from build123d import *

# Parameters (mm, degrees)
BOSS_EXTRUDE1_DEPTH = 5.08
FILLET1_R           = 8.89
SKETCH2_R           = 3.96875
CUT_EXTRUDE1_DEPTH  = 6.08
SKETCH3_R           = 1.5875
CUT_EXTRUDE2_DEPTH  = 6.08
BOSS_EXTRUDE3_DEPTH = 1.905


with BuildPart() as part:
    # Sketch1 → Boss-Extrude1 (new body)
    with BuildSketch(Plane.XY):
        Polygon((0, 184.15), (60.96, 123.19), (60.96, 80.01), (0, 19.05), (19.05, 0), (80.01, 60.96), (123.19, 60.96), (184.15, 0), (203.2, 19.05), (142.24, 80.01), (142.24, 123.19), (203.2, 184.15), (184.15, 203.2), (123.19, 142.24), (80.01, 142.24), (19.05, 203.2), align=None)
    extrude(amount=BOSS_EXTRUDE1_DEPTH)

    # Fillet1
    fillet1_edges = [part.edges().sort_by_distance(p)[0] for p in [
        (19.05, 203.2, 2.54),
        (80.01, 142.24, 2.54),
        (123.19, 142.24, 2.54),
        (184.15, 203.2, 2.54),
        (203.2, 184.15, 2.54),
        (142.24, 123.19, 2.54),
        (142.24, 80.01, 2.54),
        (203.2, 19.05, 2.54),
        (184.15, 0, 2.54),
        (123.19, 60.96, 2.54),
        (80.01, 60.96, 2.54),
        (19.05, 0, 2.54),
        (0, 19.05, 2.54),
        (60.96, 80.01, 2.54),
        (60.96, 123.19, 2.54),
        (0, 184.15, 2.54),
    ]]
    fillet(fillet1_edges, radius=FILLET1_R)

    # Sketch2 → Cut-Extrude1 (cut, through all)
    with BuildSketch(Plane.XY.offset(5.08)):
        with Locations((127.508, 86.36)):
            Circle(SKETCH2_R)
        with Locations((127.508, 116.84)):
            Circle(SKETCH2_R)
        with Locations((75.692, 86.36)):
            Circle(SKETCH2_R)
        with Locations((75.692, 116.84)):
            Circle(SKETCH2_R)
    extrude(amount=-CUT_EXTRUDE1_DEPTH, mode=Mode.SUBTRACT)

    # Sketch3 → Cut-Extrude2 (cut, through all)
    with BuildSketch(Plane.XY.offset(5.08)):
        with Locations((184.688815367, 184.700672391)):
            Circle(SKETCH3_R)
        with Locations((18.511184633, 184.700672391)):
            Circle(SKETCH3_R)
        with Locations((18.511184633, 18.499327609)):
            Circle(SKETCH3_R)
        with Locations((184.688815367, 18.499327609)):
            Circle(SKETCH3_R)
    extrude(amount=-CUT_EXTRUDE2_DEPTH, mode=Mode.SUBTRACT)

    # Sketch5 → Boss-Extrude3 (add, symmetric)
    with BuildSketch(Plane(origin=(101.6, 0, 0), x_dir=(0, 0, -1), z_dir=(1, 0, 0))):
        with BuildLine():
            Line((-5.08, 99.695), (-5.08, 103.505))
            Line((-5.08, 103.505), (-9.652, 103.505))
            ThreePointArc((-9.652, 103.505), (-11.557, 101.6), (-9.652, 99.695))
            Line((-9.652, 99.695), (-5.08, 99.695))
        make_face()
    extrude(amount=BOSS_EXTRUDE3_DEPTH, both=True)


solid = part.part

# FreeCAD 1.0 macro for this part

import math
import FreeCAD as App
import Part
import Sketcher
Q = App.Units.Quantity


def edges_at(feature, points):
    """Names of the edges that pass closest to the given points."""
    edges = feature.Shape.Edges
    near = lambda p: min(range(len(edges)), key=lambda i: edges[i].distToShape(Part.Vertex(*p))[0])
    return sorted({f"Edge{near(p) + 1}" for p in points})

doc = App.newDocument("Part")
body = doc.addObject("PartDesign::Body", "Body")

# Sketch on XY plane
sketch1 = body.newObject("Sketcher::SketchObject", "Sketch")
sketch1.AttachmentSupport = (doc.getObject("XY_Plane"), [""])
sketch1.MapMode = "FlatFace"
sketch1.addGeometry([
    Part.LineSegment(App.Vector(0, 184.15, 0), App.Vector(60.96, 123.19, 0)),  # 0
    Part.LineSegment(App.Vector(60.96, 123.19, 0), App.Vector(60.96, 80.01, 0)),  # 1
    Part.LineSegment(App.Vector(60.96, 80.01, 0), App.Vector(0, 19.05, 0)),  # 2
    Part.LineSegment(App.Vector(0, 19.05, 0), App.Vector(19.05, 0, 0)),  # 3
    Part.LineSegment(App.Vector(19.05, 0, 0), App.Vector(80.01, 60.96, 0)),  # 4
    Part.LineSegment(App.Vector(80.01, 60.96, 0), App.Vector(123.19, 60.96, 0)),  # 5
    Part.LineSegment(App.Vector(123.19, 60.96, 0), App.Vector(184.15, 0, 0)),  # 6
    Part.LineSegment(App.Vector(184.15, 0, 0), App.Vector(203.2, 19.05, 0)),  # 7
    Part.LineSegment(App.Vector(203.2, 19.05, 0), App.Vector(142.24, 80.01, 0)),  # 8
    Part.LineSegment(App.Vector(142.24, 80.01, 0), App.Vector(142.24, 123.19, 0)),  # 9
    Part.LineSegment(App.Vector(142.24, 123.19, 0), App.Vector(203.2, 184.15, 0)),  # 10
    Part.LineSegment(App.Vector(203.2, 184.15, 0), App.Vector(184.15, 203.2, 0)),  # 11
    Part.LineSegment(App.Vector(184.15, 203.2, 0), App.Vector(123.19, 142.24, 0)),  # 12
    Part.LineSegment(App.Vector(123.19, 142.24, 0), App.Vector(80.01, 142.24, 0)),  # 13
    Part.LineSegment(App.Vector(80.01, 142.24, 0), App.Vector(19.05, 203.2, 0)),  # 14
    Part.LineSegment(App.Vector(19.05, 203.2, 0), App.Vector(0, 184.15, 0)),  # 15
], False)
sketch1.addConstraint([
    Sketcher.Constraint("Coincident", 0, 2, 1, 1),
    Sketcher.Constraint("Coincident", 1, 2, 2, 1),
    Sketcher.Constraint("Coincident", 2, 2, 3, 1),
    Sketcher.Constraint("Coincident", 3, 2, 4, 1),
    Sketcher.Constraint("Coincident", 4, 2, 5, 1),
    Sketcher.Constraint("Coincident", 5, 2, 6, 1),
    Sketcher.Constraint("Coincident", 6, 2, 7, 1),
    Sketcher.Constraint("Coincident", 7, 2, 8, 1),
    Sketcher.Constraint("Coincident", 8, 2, 9, 1),
    Sketcher.Constraint("Coincident", 9, 2, 10, 1),
    Sketcher.Constraint("Coincident", 10, 2, 11, 1),
    Sketcher.Constraint("Coincident", 11, 2, 12, 1),
    Sketcher.Constraint("Coincident", 12, 2, 13, 1),
    Sketcher.Constraint("Coincident", 13, 2, 14, 1),
    Sketcher.Constraint("Coincident", 14, 2, 15, 1),
    Sketcher.Constraint("Coincident", 15, 2, 0, 1),
    Sketcher.Constraint("Vertical", 1),
    Sketcher.Constraint("Horizontal", 5),
    Sketcher.Constraint("Vertical", 9),
    Sketcher.Constraint("Horizontal", 13),
    Sketcher.Constraint("PointOnObject", 2, 2, -2),
    Sketcher.Constraint("PointOnObject", 3, 2, -1),
    Sketcher.Constraint("PointOnObject", 6, 2, -1),
    Sketcher.Constraint("PointOnObject", 15, 2, -2),
    Sketcher.Constraint("Perpendicular", 0, 2),
    Sketcher.Constraint("Perpendicular", 2, 3),
    Sketcher.Constraint("Perpendicular", 3, 4),
    Sketcher.Constraint("Perpendicular", 4, 6),
    Sketcher.Constraint("Perpendicular", 6, 7),
    Sketcher.Constraint("Perpendicular", 7, 8),
    Sketcher.Constraint("Perpendicular", 8, 10),
    Sketcher.Constraint("Perpendicular", 10, 11),
    Sketcher.Constraint("Perpendicular", 11, 12),
    Sketcher.Constraint("Perpendicular", 12, 14),
    Sketcher.Constraint("Perpendicular", 14, 15),
    Sketcher.Constraint("Horizontal", 2, 2, 7, 2),
    Sketcher.Constraint("Horizontal", 1, 2, 8, 2),
    Sketcher.Constraint("Horizontal", 0, 2, 9, 2),
    Sketcher.Constraint("Horizontal", 11, 2, 14, 2),
    Sketcher.Constraint("Horizontal", 10, 2, 15, 2),
    Sketcher.Constraint("Vertical", 7, 2, 10, 2),
    Sketcher.Constraint("Vertical", 6, 2, 11, 2),
    Sketcher.Constraint("Vertical", 5, 2, 12, 2),
    Sketcher.Constraint("Equal", 13, 1),
    Sketcher.Constraint("Equal", 2, 4),
    Sketcher.Constraint("DistanceX", 5, 1, 5, 2, Q("1.7 in")),
    Sketcher.Constraint("DistanceX", -1, 1, 7, 2, Q("8 in")),
    Sketcher.Constraint("DistanceX", -1, 1, 0, 2, Q("2.4 in")),
])
pad1 = body.newObject("PartDesign::Pad", "Pad")
pad1.Profile = sketch1
pad1.Length = Q("0.2 in")
doc.recompute()

fillet = body.newObject("PartDesign::Fillet", "Fillet")
fillet.Base = (pad1, edges_at(pad1, [
    (19.05, 203.2, 2.54),
    (80.01, 142.24, 2.54),
    (123.19, 142.24, 2.54),
    (184.15, 203.2, 2.54),
    (203.2, 184.15, 2.54),
    (142.24, 123.19, 2.54),
    (142.24, 80.01, 2.54),
    (203.2, 19.05, 2.54),
    (184.15, 0, 2.54),
    (123.19, 60.96, 2.54),
    (80.01, 60.96, 2.54),
    (19.05, 0, 2.54),
    (0, 19.05, 2.54),
    (60.96, 80.01, 2.54),
    (60.96, 123.19, 2.54),
    (0, 184.15, 2.54),
]))
fillet.Radius = Q("0.35 in")

# Sketch on XY plane
sketch2 = body.newObject("Sketcher::SketchObject", "Sketch001")
sketch2.AttachmentSupport = (doc.getObject("XY_Plane"), [""])
sketch2.MapMode = "FlatFace"
sketch2.AttachmentOffset = App.Placement(App.Vector(0, 0, 0.2 * 25.4), App.Rotation())
sketch2.addGeometry([
    Part.Circle(App.Vector(127.508, 86.36, 0), App.Vector(0, 0, 1), 3.96875),
    Part.Circle(App.Vector(127.508, 116.84, 0), App.Vector(0, 0, 1), 3.96875),
    Part.Circle(App.Vector(75.692, 86.36, 0), App.Vector(0, 0, 1), 3.96875),
    Part.Circle(App.Vector(75.692, 116.84, 0), App.Vector(0, 0, 1), 3.96875),
], False)
sketch2.addConstraint([
    Sketcher.Constraint("Equal", 0, 1),
    Sketcher.Constraint("Equal", 1, 2),
    Sketcher.Constraint("Equal", 2, 3),
    Sketcher.Constraint("Horizontal", 0, 3, 2, 3),
    Sketcher.Constraint("Horizontal", 1, 3, 3, 3),
    Sketcher.Constraint("Vertical", 0, 3, 1, 3),
    Sketcher.Constraint("Vertical", 2, 3, 3, 3),
    Sketcher.Constraint("Diameter", 0, Q("0.3125 in")),
    Sketcher.Constraint("DistanceY", -1, 1, 0, 3, Q("3.4 in")),
    Sketcher.Constraint("DistanceY", -1, 1, 1, 3, Q("4.6 in")),
    Sketcher.Constraint("DistanceX", -1, 1, 0, 3, Q("5.02 in")),
    Sketcher.Constraint("DistanceX", -1, 1, 2, 3, Q("2.98 in")),
])
pocket1 = body.newObject("PartDesign::Pocket", "Pocket")
pocket1.Profile = sketch2
pocket1.Type = "ThroughAll"

# Sketch on XY plane
sketch3 = body.newObject("Sketcher::SketchObject", "Sketch002")
sketch3.AttachmentSupport = (doc.getObject("XY_Plane"), [""])
sketch3.MapMode = "FlatFace"
sketch3.AttachmentOffset = App.Placement(App.Vector(0, 0, 0.2 * 25.4), App.Rotation())
sketch3.addGeometry([
    Part.Circle(App.Vector(184.688815, 184.700672, 0), App.Vector(0, 0, 1), 1.5875),
    Part.Circle(App.Vector(18.511185, 184.700672, 0), App.Vector(0, 0, 1), 1.5875),
    Part.Circle(App.Vector(18.511185, 18.499328, 0), App.Vector(0, 0, 1), 1.5875),
    Part.Circle(App.Vector(184.688815, 18.499328, 0), App.Vector(0, 0, 1), 1.5875),
], False)
sketch3.addConstraint([
    Sketcher.Constraint("Equal", 0, 1),
    Sketcher.Constraint("Equal", 1, 2),
    Sketcher.Constraint("Equal", 2, 3),
    Sketcher.Constraint("Horizontal", 0, 3, 1, 3),
    Sketcher.Constraint("Horizontal", 2, 3, 3, 3),
    Sketcher.Constraint("Vertical", 1, 3, 2, 3),
    Sketcher.Constraint("Vertical", 0, 3, 3, 3),
    Sketcher.Constraint("Diameter", 0, Q("0.125 in")),
    Sketcher.Constraint("DistanceX", 1, 3, 0, 3, 166.177631),
    Sketcher.Constraint("DistanceX", -1, 1, 0, 3, 184.688815),
    Sketcher.Constraint("DistanceY", -1, 1, 0, 3, 184.700672),
    Sketcher.Constraint("DistanceY", -1, 1, 2, 3, 18.499328),
])
pocket2 = body.newObject("PartDesign::Pocket", "Pocket001")
pocket2.Profile = sketch3
pocket2.Type = "ThroughAll"

# Sketch on YZ plane
sketch4 = body.newObject("Sketcher::SketchObject", "Sketch003")
sketch4.AttachmentSupport = (doc.getObject("YZ_Plane"), [""])
sketch4.MapMode = "FlatFace"
sketch4.AttachmentOffset = App.Placement(App.Vector(0, 0, 4 * 25.4), App.Rotation())
sketch4.addGeometry([
    Part.LineSegment(App.Vector(99.695, 5.08, 0), App.Vector(103.505, 5.08, 0)),
    Part.LineSegment(App.Vector(103.505, 5.08, 0), App.Vector(103.505, 9.652, 0)),
    Part.ArcOfCircle(Part.Circle(App.Vector(101.6, 9.652, 0), App.Vector(0, 0, 1), 1.905), math.radians(0), math.radians(180)),
    Part.LineSegment(App.Vector(99.695, 9.652, 0), App.Vector(99.695, 5.08, 0)),
], False)
sketch4.addConstraint([
    Sketcher.Constraint("Coincident", 0, 2, 1, 1),
    Sketcher.Constraint("Tangent", 1, 2, 2, 1),
    Sketcher.Constraint("Tangent", 2, 2, 3, 1),
    Sketcher.Constraint("Coincident", 3, 2, 0, 1),
    Sketcher.Constraint("Horizontal", 0),
    Sketcher.Constraint("Vertical", 1),
    Sketcher.Constraint("Vertical", 3),
    Sketcher.Constraint("DistanceX", -1, 1, 2, 3, Q("4 in")),
    Sketcher.Constraint("Radius", 2, Q("0.075 in")),
    Sketcher.Constraint("DistanceY", 1, 1, 1, 2, Q("0.18 in")),
    Sketcher.Constraint("DistanceY", -1, 1, 0, 2, Q("0.2 in")),
])
pad2 = body.newObject("PartDesign::Pad", "Pad001")
pad2.Profile = sketch4
pad2.Length = Q("0.15 in")
pad2.Midplane = True

doc.recompute()
